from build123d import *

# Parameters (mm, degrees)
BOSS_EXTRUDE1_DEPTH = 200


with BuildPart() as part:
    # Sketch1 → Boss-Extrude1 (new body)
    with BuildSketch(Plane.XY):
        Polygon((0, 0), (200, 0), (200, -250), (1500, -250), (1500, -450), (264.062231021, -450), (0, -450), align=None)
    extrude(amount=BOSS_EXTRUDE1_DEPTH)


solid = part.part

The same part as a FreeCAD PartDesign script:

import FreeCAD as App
import Part
import Sketcher

V = App.Vector


def add_polygon(sketch, points):
    """Adds a closed chain of lines whose ends are joined by coincident constraints."""
    first, n = sketch.GeometryCount, len(points)
    for a, b in zip(points, points[1:] + points[:1]):
        sketch.addGeometry(Part.LineSegment(App.Vector(*a, 0), App.Vector(*b, 0)), False)
    for i in range(n):
        sketch.addConstraint(Sketcher.Constraint("Coincident", first + i, 2, first + (i + 1) % n, 1))

doc = App.newDocument("Part")
params = doc.addObject("Spreadsheet::Sheet", "Params")
for row, (alias, value) in enumerate([
    ("sketch1_width", "200 mm"),
    ("sketch1_width2", "1500 mm"),
    ("sketch1_height", "450 mm"),
    ("pad1_length", "200 mm"),
], start=1):
    params.set(f"A{row}", alias)
    params.set(f"B{row}", "=" + value)
    params.setAlias(f"B{row}", alias)

body = doc.addObject("PartDesign::Body", "Body")

sketch1 = body.newObject("Sketcher::SketchObject", "Sketch")
sketch1.AttachmentSupport = (doc.getObject("XY_Plane"), [""])
sketch1.MapMode = "FlatFace"
add_polygon(sketch1, [(200, 0), (0, 0), (0, -450), (1500, -450), (1500, -250), (200, -250)])
sketch1.addConstraint([
    Sketcher.Constraint("Horizontal", 0),
    Sketcher.Constraint("Vertical", 1),
    Sketcher.Constraint("Horizontal", 2),
    Sketcher.Constraint("Vertical", 3),
    Sketcher.Constraint("Horizontal", 4),
    Sketcher.Constraint("Vertical", 5),
    Sketcher.Constraint("Coincident", 0, 2, -1, 1),
    Sketcher.Constraint("Equal", 0, 3),
    Sketcher.Constraint("DistanceX", 0, 2, 0, 1, 200.0),
    Sketcher.Constraint("DistanceX", 2, 1, 2, 2, 1500.0),
    Sketcher.Constraint("DistanceY", 1, 2, 1, 1, 450.0),
])
sketch1.setExpression("Constraints[14]", "Params.sketch1_width")
sketch1.setExpression("Constraints[15]", "Params.sketch1_width2")
sketch1.setExpression("Constraints[16]", "Params.sketch1_height")
pad1 = body.newObject("PartDesign::Pad", "Pad")
pad1.Profile = sketch1
pad1.setExpression("Length", "Params.pad1_length")

doc.recompute()
